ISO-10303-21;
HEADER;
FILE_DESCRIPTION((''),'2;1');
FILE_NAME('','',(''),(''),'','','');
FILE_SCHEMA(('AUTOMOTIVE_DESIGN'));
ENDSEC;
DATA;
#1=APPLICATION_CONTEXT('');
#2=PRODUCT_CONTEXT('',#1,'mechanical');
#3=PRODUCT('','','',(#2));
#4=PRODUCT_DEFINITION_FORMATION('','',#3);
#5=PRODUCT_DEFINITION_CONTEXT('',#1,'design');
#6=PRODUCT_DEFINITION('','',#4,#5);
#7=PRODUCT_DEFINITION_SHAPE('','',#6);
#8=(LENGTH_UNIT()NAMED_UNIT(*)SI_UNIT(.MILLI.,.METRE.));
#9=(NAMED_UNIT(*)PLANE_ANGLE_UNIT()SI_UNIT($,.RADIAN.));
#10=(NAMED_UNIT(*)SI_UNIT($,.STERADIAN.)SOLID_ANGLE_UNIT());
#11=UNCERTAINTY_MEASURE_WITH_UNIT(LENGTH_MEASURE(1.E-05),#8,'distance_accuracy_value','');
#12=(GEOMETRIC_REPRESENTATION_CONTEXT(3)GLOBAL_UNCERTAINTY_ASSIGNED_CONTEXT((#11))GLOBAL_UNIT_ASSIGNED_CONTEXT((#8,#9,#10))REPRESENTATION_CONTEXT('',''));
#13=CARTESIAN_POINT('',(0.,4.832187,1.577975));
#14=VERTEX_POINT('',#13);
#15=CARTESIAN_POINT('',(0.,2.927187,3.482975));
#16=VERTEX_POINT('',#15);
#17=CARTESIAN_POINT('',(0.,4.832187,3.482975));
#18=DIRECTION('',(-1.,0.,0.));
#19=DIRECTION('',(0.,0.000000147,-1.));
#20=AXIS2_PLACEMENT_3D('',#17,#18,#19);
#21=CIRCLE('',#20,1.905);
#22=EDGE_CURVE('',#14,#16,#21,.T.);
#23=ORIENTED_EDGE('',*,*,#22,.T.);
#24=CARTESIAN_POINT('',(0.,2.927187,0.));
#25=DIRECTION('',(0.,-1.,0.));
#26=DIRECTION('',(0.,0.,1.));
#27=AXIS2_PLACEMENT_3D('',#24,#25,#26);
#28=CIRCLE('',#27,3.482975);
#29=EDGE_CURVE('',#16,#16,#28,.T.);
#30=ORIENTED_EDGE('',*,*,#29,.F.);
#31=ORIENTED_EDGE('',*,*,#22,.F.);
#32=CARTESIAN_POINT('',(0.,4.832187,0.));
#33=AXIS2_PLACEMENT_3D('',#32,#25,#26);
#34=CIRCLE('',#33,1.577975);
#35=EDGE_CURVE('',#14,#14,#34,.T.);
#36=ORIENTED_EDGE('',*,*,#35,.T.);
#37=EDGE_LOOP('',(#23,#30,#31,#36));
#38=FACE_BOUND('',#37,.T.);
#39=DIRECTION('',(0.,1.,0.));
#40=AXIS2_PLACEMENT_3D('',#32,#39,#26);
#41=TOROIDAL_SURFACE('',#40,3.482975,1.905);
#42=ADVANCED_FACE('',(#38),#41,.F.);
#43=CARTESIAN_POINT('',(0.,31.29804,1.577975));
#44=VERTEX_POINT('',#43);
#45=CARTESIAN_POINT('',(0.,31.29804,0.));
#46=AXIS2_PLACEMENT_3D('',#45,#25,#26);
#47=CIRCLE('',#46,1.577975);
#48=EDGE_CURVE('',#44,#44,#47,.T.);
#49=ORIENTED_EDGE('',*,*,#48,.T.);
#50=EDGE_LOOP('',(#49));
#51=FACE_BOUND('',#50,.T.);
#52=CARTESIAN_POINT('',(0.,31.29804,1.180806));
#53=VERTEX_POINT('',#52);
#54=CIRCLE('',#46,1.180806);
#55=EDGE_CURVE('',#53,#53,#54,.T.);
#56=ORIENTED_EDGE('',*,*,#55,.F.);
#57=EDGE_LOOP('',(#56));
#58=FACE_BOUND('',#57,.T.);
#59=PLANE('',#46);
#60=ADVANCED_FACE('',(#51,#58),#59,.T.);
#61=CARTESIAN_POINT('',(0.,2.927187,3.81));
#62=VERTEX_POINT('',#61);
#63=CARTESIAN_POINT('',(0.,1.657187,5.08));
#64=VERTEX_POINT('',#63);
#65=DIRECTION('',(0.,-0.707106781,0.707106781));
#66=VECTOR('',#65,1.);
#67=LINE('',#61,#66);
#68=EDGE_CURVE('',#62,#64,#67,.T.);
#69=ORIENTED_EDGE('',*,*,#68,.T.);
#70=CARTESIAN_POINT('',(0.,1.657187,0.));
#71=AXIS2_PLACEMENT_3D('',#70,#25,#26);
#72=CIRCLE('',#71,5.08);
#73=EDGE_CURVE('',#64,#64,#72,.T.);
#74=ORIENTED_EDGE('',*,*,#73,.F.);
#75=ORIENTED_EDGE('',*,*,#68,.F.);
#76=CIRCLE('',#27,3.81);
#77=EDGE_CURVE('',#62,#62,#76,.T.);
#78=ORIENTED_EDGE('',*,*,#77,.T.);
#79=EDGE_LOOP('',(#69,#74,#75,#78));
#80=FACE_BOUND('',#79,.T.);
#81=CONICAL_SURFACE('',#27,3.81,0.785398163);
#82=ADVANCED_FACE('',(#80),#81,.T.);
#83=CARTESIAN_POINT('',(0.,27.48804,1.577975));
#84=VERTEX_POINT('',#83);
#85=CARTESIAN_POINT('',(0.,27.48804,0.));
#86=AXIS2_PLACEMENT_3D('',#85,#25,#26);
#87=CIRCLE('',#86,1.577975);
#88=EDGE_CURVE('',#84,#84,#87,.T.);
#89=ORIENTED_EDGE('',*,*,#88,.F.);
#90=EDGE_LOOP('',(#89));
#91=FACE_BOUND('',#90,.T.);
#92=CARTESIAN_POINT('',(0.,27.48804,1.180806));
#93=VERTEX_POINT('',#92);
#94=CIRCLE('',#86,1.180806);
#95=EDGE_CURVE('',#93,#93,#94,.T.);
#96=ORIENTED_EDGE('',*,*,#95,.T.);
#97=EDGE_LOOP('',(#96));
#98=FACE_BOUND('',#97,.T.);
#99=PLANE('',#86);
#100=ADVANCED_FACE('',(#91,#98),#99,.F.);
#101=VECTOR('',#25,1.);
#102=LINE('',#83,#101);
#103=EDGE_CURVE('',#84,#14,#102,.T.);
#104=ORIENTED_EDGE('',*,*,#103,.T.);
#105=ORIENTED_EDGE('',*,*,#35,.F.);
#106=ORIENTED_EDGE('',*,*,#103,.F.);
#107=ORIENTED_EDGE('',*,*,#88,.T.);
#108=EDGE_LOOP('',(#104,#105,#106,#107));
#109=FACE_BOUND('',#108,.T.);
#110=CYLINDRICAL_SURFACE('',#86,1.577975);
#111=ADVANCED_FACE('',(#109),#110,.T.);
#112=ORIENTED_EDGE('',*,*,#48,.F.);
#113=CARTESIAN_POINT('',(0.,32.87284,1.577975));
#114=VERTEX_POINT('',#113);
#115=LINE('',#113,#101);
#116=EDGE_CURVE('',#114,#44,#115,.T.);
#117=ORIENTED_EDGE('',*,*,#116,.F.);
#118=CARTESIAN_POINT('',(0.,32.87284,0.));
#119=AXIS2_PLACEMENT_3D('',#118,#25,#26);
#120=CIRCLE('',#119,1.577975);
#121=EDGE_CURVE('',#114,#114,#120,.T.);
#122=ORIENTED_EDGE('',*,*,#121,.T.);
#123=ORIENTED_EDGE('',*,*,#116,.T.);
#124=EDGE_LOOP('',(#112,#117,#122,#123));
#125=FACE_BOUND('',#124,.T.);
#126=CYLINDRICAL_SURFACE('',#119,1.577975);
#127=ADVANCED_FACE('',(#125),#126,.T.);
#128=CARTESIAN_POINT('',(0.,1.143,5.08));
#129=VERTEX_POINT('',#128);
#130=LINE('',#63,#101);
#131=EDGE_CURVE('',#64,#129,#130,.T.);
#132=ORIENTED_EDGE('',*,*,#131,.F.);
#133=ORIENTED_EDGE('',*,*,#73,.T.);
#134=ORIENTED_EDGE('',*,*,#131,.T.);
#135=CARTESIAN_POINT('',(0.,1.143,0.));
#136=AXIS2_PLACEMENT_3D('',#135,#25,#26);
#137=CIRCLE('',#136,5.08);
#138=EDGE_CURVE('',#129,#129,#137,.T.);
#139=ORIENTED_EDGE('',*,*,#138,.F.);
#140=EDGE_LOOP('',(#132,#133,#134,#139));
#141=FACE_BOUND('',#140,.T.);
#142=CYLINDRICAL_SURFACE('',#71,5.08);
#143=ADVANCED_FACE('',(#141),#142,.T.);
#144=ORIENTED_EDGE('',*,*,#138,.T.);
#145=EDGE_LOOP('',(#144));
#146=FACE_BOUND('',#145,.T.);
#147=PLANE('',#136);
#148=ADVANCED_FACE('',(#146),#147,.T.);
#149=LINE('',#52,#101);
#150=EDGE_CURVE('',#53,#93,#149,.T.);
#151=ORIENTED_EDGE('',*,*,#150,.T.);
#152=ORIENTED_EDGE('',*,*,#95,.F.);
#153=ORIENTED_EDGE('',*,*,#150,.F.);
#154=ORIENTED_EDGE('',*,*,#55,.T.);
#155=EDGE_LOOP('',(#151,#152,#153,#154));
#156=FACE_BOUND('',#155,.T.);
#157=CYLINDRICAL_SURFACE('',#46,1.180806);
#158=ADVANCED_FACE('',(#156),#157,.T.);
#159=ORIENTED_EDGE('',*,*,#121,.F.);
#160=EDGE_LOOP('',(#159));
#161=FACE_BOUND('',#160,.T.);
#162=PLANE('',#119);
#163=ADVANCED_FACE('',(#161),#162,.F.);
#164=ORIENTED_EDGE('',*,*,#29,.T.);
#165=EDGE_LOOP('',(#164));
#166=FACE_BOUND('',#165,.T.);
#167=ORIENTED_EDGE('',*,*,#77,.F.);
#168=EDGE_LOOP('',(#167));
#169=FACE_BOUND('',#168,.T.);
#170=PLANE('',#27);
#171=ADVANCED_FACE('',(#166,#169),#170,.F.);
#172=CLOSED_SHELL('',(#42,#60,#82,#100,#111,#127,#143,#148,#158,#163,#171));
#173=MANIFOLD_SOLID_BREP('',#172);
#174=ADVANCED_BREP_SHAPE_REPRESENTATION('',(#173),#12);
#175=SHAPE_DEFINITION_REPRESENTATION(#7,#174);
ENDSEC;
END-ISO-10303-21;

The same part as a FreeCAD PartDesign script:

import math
import FreeCAD as App
import Part
import Sketcher
Q = App.Units.Quantity

doc = App.newDocument("Part")
body = doc.addObject("PartDesign::Body", "Body")

sketch1 = body.newObject("Sketcher::SketchObject", "Sketch")
sketch1.AttachmentSupport = (doc.getObject("YZ_Plane"), [""])
sketch1.MapMode = "FlatFace"
sketch1.addGeometry([
    Part.LineSegment(App.Vector(2.93, 3.81, 0), App.Vector(1.66, 5.08, 0)),
    Part.LineSegment(App.Vector(1.66, 5.08, 0), App.Vector(1.14, 5.08, 0)),
    Part.LineSegment(App.Vector(1.14, 5.08, 0), App.Vector(1.14, 0, 0)),
    Part.LineSegment(App.Vector(1.14, 0, 0), App.Vector(32.87, 0, 0)),
    Part.LineSegment(App.Vector(32.87, 0, 0), App.Vector(32.87, 1.58, 0)),
    Part.LineSegment(App.Vector(32.87, 1.58, 0), App.Vector(31.3, 1.58, 0)),
    Part.LineSegment(App.Vector(31.3, 1.58, 0), App.Vector(31.3, 1.18, 0)),
    Part.LineSegment(App.Vector(31.3, 1.18, 0), App.Vector(27.49, 1.18, 0)),
    Part.LineSegment(App.Vector(27.49, 1.18, 0), App.Vector(27.49, 1.58, 0)),
    Part.LineSegment(App.Vector(27.49, 1.58, 0), App.Vector(4.83, 1.58, 0)),
    Part.ArcOfCircle(Part.Circle(App.Vector(4.83, 3.48, 0), App.Vector(0, 0, 1), 1.9), math.radians(180), math.radians(270)),
    Part.LineSegment(App.Vector(2.93, 3.48, 0), App.Vector(2.93, 3.81, 0)),
], False)
sketch1.addConstraint([
    Sketcher.Constraint("Coincident", 0, 2, 1, 1),
    Sketcher.Constraint("Coincident", 1, 2, 2, 1),
    Sketcher.Constraint("Coincident", 2, 2, 3, 1),
    Sketcher.Constraint("Coincident", 3, 2, 4, 1),
    Sketcher.Constraint("Coincident", 4, 2, 5, 1),
    Sketcher.Constraint("Coincident", 5, 2, 6, 1),
    Sketcher.Constraint("Coincident", 6, 2, 7, 1),
    Sketcher.Constraint("Coincident", 7, 2, 8, 1),
    Sketcher.Constraint("Coincident", 8, 2, 9, 1),
    Sketcher.Constraint("Tangent", 9, 2, 10, 2),
    Sketcher.Constraint("Tangent", 10, 1, 11, 1),
    Sketcher.Constraint("Coincident", 11, 2, 0, 1),
    Sketcher.Constraint("Horizontal", 1),
    Sketcher.Constraint("Vertical", 2),
    Sketcher.Constraint("Horizontal", 3),
    Sketcher.Constraint("Vertical", 4),
    Sketcher.Constraint("Horizontal", 5),
    Sketcher.Constraint("Vertical", 6),
    Sketcher.Constraint("Horizontal", 7),
    Sketcher.Constraint("Vertical", 8),
    Sketcher.Constraint("Horizontal", 9),
    Sketcher.Constraint("Vertical", 11),
    Sketcher.Constraint("PointOnObject", 2, 2, -1),
    Sketcher.Constraint("Horizontal", 5, 2, 8, 2),
    Sketcher.Constraint("DistanceY", 2, 2, 2, 1, Q("0.2 in")),
    Sketcher.Constraint("Angle", 0, Q("135 deg")),
    Sketcher.Constraint("Radius", 10, Q("0.075 in")),
    Sketcher.Constraint("DistanceX", 7, 2, 7, 1, Q("0.15 in")),
    Sketcher.Constraint("DistanceX", 5, 2, 5, 1, Q("0.062 in")),
    Sketcher.Constraint("DistanceY", -1, 1, 11, 2, Q("0.15 in")),
    Sketcher.Constraint("DistanceX", -1, 1, 1, 2, Q("0.045 in")),
    Sketcher.Constraint("DistanceX", 3, 1, 3, 2, Q("31.72984 mm")),
    Sketcher.Constraint("DistanceY", 6, 2, 6, 1, Q("0.397169 mm")),
    Sketcher.Constraint("DistanceX", 1, 2, 1, 1, Q("0.514187 mm")),
    Sketcher.Constraint("DistanceY", 4, 1, 4, 2, Q("1.577975 mm")),
])
revolution = body.newObject("PartDesign::Revolution", "Revolution")
revolution.Profile = sketch1
revolution.ReferenceAxis = (sketch1, ["H_Axis"])
revolution.Angle = 360

doc.recompute()
